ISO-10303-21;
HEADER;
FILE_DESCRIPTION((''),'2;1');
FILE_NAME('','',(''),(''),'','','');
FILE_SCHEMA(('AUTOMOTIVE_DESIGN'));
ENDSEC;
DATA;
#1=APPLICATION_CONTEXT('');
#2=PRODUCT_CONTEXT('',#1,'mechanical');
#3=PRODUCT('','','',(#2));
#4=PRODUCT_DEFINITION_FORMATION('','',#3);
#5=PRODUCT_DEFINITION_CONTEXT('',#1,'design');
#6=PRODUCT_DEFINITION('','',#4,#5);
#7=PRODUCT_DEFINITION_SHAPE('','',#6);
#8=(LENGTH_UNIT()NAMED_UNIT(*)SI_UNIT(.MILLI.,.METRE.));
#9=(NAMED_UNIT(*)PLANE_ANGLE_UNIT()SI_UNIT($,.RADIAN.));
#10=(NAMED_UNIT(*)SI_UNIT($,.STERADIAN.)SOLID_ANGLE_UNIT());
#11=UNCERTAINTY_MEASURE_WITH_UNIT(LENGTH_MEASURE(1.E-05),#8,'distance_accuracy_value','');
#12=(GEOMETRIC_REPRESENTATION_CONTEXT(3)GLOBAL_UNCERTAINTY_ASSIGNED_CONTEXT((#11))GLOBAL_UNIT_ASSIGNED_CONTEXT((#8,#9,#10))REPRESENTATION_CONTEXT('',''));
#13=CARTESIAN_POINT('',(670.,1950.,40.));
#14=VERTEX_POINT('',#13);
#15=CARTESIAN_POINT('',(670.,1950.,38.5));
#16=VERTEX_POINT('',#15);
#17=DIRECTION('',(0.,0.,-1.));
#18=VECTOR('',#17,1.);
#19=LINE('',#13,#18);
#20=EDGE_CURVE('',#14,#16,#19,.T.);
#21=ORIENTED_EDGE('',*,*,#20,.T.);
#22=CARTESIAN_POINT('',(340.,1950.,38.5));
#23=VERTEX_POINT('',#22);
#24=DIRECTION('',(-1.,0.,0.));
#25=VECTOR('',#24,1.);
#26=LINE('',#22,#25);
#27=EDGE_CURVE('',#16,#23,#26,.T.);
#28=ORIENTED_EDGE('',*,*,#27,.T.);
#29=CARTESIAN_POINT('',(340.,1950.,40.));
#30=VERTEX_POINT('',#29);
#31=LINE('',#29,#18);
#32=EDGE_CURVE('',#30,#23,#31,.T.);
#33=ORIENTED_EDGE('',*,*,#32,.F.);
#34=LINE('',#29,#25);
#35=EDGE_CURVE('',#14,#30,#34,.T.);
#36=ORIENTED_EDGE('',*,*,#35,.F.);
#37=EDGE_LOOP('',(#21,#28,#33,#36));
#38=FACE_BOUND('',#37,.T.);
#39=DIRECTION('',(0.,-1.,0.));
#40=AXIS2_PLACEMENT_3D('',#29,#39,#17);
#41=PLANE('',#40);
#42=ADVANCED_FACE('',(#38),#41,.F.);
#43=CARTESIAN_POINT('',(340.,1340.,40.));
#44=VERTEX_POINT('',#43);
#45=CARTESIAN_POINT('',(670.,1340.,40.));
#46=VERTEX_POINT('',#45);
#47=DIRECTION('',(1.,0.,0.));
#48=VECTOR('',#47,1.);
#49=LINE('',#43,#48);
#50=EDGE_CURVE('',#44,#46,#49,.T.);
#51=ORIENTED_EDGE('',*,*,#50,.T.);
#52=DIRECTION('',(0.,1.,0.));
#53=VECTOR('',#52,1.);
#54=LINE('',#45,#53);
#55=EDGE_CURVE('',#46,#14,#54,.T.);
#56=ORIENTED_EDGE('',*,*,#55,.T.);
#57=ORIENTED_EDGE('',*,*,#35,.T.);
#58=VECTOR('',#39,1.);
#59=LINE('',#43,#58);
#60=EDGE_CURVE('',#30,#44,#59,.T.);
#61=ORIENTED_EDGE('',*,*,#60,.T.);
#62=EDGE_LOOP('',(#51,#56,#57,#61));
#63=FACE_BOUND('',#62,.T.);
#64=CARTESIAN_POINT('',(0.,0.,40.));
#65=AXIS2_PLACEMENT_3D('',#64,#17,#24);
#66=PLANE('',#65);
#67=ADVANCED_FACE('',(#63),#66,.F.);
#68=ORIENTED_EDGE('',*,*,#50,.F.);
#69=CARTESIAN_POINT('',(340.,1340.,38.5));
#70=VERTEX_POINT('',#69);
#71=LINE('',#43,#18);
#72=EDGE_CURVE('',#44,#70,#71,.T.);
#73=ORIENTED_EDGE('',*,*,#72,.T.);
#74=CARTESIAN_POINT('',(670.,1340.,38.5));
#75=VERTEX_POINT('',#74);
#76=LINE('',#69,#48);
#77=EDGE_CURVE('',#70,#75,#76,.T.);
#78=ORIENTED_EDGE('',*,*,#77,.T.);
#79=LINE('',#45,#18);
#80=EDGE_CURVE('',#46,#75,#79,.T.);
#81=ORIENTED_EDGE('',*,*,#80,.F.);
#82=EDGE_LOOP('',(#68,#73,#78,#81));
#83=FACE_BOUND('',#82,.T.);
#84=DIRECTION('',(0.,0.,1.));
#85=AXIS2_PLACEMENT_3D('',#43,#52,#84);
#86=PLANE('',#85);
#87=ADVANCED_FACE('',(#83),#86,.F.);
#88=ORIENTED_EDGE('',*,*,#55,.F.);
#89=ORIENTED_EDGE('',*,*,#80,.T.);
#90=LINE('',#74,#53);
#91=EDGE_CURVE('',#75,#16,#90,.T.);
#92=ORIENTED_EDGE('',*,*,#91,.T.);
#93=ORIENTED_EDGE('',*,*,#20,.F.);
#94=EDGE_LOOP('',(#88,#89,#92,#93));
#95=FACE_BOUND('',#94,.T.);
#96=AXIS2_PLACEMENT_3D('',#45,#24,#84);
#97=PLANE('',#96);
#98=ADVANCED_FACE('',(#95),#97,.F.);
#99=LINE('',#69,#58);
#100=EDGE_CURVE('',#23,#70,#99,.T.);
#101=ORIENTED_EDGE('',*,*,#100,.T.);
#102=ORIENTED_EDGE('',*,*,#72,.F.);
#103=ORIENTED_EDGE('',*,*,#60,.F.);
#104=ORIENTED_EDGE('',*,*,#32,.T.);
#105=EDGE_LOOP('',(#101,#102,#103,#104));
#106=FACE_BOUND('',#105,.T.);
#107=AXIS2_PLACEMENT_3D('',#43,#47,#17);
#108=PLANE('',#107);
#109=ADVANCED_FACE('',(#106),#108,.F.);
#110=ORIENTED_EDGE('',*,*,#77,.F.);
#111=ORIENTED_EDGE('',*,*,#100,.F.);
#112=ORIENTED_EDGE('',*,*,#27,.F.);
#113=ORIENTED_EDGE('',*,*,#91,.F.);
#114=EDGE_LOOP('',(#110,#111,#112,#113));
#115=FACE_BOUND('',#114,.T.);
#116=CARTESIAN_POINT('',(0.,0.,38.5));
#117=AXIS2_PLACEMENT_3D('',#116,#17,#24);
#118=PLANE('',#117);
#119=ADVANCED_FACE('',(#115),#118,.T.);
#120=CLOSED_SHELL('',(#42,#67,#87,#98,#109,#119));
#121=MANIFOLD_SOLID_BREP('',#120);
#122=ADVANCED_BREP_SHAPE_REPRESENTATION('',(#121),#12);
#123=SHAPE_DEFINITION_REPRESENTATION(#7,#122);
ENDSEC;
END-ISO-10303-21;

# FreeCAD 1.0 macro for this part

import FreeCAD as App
import Part
import Sketcher
Q = App.Units.Quantity

doc = App.newDocument("Part")
body = doc.addObject("PartDesign::Body", "Body")

# Sketch on XY plane
sketch1 = doc.addObject("Sketcher::SketchObject", "Sketch")
body.addObject(sketch1)
sketch1.AttachmentSupport = (doc.XY_Plane, [""])
sketch1.MapMode = "FlatFace"
sketch1.AttachmentOffset = App.Placement(App.Vector(0, 0, 38.5), App.Rotation())
sketch1.addGeometry([
    Part.LineSegment(App.Vector(340, 1950, 0), App.Vector(340, 1340, 0)),
    Part.LineSegment(App.Vector(340, 1340, 0), App.Vector(670, 1340, 0)),
    Part.LineSegment(App.Vector(670, 1340, 0), App.Vector(670, 1950, 0)),
    Part.LineSegment(App.Vector(670, 1950, 0), App.Vector(340, 1950, 0)),
], False)
sketch1.addConstraint([
    Sketcher.Constraint("Coincident", 0, 2, 1, 1),
    Sketcher.Constraint("Coincident", 1, 2, 2, 1),
    Sketcher.Constraint("Coincident", 2, 2, 3, 1),
    Sketcher.Constraint("Coincident", 3, 2, 0, 1),
    Sketcher.Constraint("Vertical", 0),
    Sketcher.Constraint("Horizontal", 1),
    Sketcher.Constraint("Vertical", 2),
    Sketcher.Constraint("Horizontal", 3),
    Sketcher.Constraint("DistanceX", 1, 1, 1, 2, Q("330 mm")),
    Sketcher.Constraint("DistanceY", 0, 2, 0, 1, Q("610 mm")),
    Sketcher.Constraint("DistanceX", -1, 1, 0, 2, Q("340 mm")),
    Sketcher.Constraint("DistanceY", -1, 1, 0, 2, Q("1340 mm")),
])
pad1 = doc.addObject("PartDesign::Pad", "Pad")
body.addObject(pad1)
pad1.Profile = sketch1
pad1.Length = 1.5

doc.recompute()
